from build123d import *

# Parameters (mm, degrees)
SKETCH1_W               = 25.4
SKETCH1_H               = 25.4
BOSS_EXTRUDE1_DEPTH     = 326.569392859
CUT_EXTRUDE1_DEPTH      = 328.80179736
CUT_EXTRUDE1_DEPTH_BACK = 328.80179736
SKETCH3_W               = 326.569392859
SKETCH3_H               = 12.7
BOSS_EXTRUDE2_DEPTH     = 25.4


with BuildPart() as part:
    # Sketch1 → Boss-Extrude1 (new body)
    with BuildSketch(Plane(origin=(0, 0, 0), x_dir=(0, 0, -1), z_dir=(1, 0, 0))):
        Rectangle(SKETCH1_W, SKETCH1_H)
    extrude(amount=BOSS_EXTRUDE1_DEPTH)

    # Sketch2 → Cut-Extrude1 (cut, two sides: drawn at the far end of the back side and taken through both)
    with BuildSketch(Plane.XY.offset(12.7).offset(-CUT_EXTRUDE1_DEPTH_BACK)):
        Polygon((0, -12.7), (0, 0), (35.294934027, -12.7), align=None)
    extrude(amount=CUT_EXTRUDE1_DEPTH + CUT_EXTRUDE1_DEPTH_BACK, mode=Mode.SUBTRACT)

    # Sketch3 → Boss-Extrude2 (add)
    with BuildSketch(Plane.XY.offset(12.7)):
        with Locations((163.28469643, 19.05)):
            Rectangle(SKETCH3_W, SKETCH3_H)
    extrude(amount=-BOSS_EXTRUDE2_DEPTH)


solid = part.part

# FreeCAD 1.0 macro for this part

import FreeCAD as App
import Part
import Sketcher

V = App.Vector
Q = App.Units.Quantity


def add_polygon(sketch, points):
    """Adds a closed chain of lines whose ends are joined by coincident constraints."""
    first, n = sketch.GeometryCount, len(points)
    for a, b in zip(points, points[1:] + points[:1]):
        sketch.addGeometry(Part.LineSegment(App.Vector(*a, 0), App.Vector(*b, 0)), False)
    for i in range(n):
        sketch.addConstraint(Sketcher.Constraint("Coincident", first + i, 2, first + (i + 1) % n, 1))

doc = App.newDocument("Part")
body = doc.addObject("PartDesign::Body", "Body")

# Sketch on YZ plane
sketch1 = body.newObject("Sketcher::SketchObject", "Sketch")
sketch1.AttachmentSupport = (doc.getObject("YZ_Plane"), [""])
sketch1.MapMode = "FlatFace"
add_polygon(sketch1, [(13, 13), (-13, 13), (-13, -13), (13, -13)])  # lines 0-3
sketch1.addConstraint([
    Sketcher.Constraint("Horizontal", 0),
    Sketcher.Constraint("Vertical", 1),
    Sketcher.Constraint("Horizontal", 2),
    Sketcher.Constraint("Vertical", 3),
    Sketcher.Constraint("Symmetric", 0, 2, 2, 2, -1, 1),
    Sketcher.Constraint("Equal", 2, 1),
    Sketcher.Constraint("DistanceX", 0, 2, 0, 1, Q("1 in")),
])
pad1 = body.newObject("PartDesign::Pad", "Pad")
pad1.Profile = sketch1
pad1.Length = 326.569393

# Sketch on XY plane
sketch2 = body.newObject("Sketcher::SketchObject", "Sketch001")
sketch2.AttachmentSupport = (doc.getObject("XY_Plane"), [""])
sketch2.MapMode = "FlatFace"
sketch2.AttachmentOffset = App.Placement(V(0, 0, 0.5 * 25.4), App.Rotation())
add_polygon(sketch2, [(0, 0), (0, -13), (35, -13)])  # lines 0-2
sketch2.addConstraint([
    Sketcher.Constraint("Vertical", 0),
    Sketcher.Constraint("Horizontal", 1),
    Sketcher.Constraint("Coincident", 2, 2, -1, 1),
    Sketcher.Constraint("DistanceY", 0, 2, 0, 1, Q("0.5 in")),
    Sketcher.Constraint("Angle", 2, Q("160.21 deg")),
])
pocket1 = body.newObject("PartDesign::Pocket", "Pocket")
pocket1.Profile = sketch2
pocket1.Type = "ThroughAll"
pocket1.Midplane = True

# Sketch on XY plane
sketch3 = body.newObject("Sketcher::SketchObject", "Sketch002")
sketch3.AttachmentSupport = (doc.getObject("XY_Plane"), [""])
sketch3.MapMode = "FlatFace"
sketch3.AttachmentOffset = App.Placement(V(0, 0, 0.5 * 25.4), App.Rotation())
add_polygon(sketch3, [(0, 25), (0, 13), (327, 13), (327, 25)])  # lines 0-3
sketch3.addConstraint([
    Sketcher.Constraint("Vertical", 0),
    Sketcher.Constraint("Horizontal", 1),
    Sketcher.Constraint("Vertical", 2),
    Sketcher.Constraint("Horizontal", 3),
    Sketcher.Constraint("PointOnObject", 0, 2, -2),
    Sketcher.Constraint("DistanceY", 0, 2, 0, 1, Q("0.5 in")),
    Sketcher.Constraint("DistanceY", -1, 1, 2, 2, Q("1 in")),
    Sketcher.Constraint("DistanceX", 1, 1, 1, 2, Q("326.569393 mm")),
])
pad2 = body.newObject("PartDesign::Pad", "Pad001")
pad2.Profile = sketch3
pad2.Length = Q("1 in")
pad2.Reversed = True

doc.recompute()
